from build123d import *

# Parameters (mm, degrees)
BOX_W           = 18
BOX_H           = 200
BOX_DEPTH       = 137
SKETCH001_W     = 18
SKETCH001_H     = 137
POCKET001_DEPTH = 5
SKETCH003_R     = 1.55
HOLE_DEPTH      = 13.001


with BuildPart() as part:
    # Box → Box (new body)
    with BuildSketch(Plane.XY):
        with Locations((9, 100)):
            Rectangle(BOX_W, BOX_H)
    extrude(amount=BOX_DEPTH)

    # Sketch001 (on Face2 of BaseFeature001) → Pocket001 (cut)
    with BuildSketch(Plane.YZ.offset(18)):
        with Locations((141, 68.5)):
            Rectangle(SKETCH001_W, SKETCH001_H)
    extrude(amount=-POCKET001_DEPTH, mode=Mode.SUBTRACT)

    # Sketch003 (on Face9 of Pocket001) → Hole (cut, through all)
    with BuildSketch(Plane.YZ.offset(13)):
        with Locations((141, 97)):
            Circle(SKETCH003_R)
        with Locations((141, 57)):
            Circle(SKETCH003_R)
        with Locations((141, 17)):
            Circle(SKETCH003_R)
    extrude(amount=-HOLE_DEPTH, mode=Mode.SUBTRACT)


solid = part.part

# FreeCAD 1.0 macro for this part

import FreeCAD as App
import Part
import Sketcher

doc = App.newDocument("Part")
body = doc.addObject("PartDesign::Body", "Body")

sketch1 = body.newObject("Sketcher::SketchObject", "Sketch")
sketch1.AttachmentSupport = (doc.getObject("XY_Plane"), [""])
sketch1.MapMode = "FlatFace"
sketch1.addGeometry([
    Part.LineSegment(App.Vector(0, 200, 0), App.Vector(0, 0, 0)),
    Part.LineSegment(App.Vector(0, 0, 0), App.Vector(18, 0, 0)),
    Part.LineSegment(App.Vector(18, 0, 0), App.Vector(18, 200, 0)),
    Part.LineSegment(App.Vector(18, 200, 0), App.Vector(0, 200, 0)),
], False)
sketch1.addConstraint([
    Sketcher.Constraint("Coincident", 0, 2, 1, 1),
    Sketcher.Constraint("Coincident", 1, 2, 2, 1),
    Sketcher.Constraint("Coincident", 2, 2, 3, 1),
    Sketcher.Constraint("Coincident", 3, 2, 0, 1),
    Sketcher.Constraint("Vertical", 0),
    Sketcher.Constraint("Horizontal", 1),
    Sketcher.Constraint("Vertical", 2),
    Sketcher.Constraint("Horizontal", 3),
    Sketcher.Constraint("Coincident", 0, 2, -1, 1),
    Sketcher.Constraint("DistanceX", 1, 1, 1, 2, 18.0),
    Sketcher.Constraint("DistanceY", 0, 2, 0, 1, 200.0),
])
pad1 = body.newObject("PartDesign::Pad", "Pad")
pad1.Profile = sketch1
pad1.Length = 137

sketch2 = body.newObject("Sketcher::SketchObject", "Sketch001")
sketch2.AttachmentSupport = (doc.getObject("YZ_Plane"), [""])
sketch2.MapMode = "FlatFace"
sketch2.AttachmentOffset = App.Placement(App.Vector(0, 0, 18), App.Rotation())
sketch2.addGeometry([
    Part.LineSegment(App.Vector(132, 137, 0), App.Vector(132, 0, 0)),
    Part.LineSegment(App.Vector(132, 0, 0), App.Vector(150, 0, 0)),
    Part.LineSegment(App.Vector(150, 0, 0), App.Vector(150, 137, 0)),
    Part.LineSegment(App.Vector(150, 137, 0), App.Vector(132, 137, 0)),
], False)
sketch2.addConstraint([
    Sketcher.Constraint("Coincident", 0, 2, 1, 1),
    Sketcher.Constraint("Coincident", 1, 2, 2, 1),
    Sketcher.Constraint("Coincident", 2, 2, 3, 1),
    Sketcher.Constraint("Coincident", 3, 2, 0, 1),
    Sketcher.Constraint("Vertical", 0),
    Sketcher.Constraint("Horizontal", 1),
    Sketcher.Constraint("Vertical", 2),
    Sketcher.Constraint("Horizontal", 3),
    Sketcher.Constraint("PointOnObject", 0, 2, -1),
    Sketcher.Constraint("DistanceX", 1, 1, 1, 2, 18.0),
    Sketcher.Constraint("DistanceY", 0, 2, 0, 1, 137.0),
    Sketcher.Constraint("DistanceX", -1, 1, 0, 2, 132.0),
])
pocket1 = body.newObject("PartDesign::Pocket", "Pocket")
pocket1.Profile = sketch2
pocket1.Length = 5

sketch3 = body.newObject("Sketcher::SketchObject", "Sketch002")
sketch3.AttachmentSupport = (doc.getObject("YZ_Plane"), [""])
sketch3.MapMode = "FlatFace"
sketch3.AttachmentOffset = App.Placement(App.Vector(0, 0, 13), App.Rotation())
sketch3.addGeometry([
    Part.Circle(App.Vector(141, 97, 0), App.Vector(0, 0, 1), 1.6),
    Part.Circle(App.Vector(141, 57, 0), App.Vector(0, 0, 1), 1.6),
    Part.Circle(App.Vector(141, 17, 0), App.Vector(0, 0, 1), 1.6),
], False)
sketch3.addConstraint([
    Sketcher.Constraint("Equal", 0, 1),
    Sketcher.Constraint("Equal", 1, 2),
    Sketcher.Constraint("Vertical", 0, 3, 1, 3),
    Sketcher.Constraint("Vertical", 1, 3, 2, 3),
    Sketcher.Constraint("Diameter", 0, 3.1),
    Sketcher.Constraint("DistanceX", -1, 1, 0, 3, 141.0),
    Sketcher.Constraint("DistanceY", -1, 1, 0, 3, 97.0),
    Sketcher.Constraint("DistanceY", -1, 1, 1, 3, 57.0),
    Sketcher.Constraint("DistanceY", -1, 1, 2, 3, 17.0),
])
pocket2 = body.newObject("PartDesign::Pocket", "Pocket001")
pocket2.Profile = sketch3
pocket2.Type = "ThroughAll"

doc.recompute()
